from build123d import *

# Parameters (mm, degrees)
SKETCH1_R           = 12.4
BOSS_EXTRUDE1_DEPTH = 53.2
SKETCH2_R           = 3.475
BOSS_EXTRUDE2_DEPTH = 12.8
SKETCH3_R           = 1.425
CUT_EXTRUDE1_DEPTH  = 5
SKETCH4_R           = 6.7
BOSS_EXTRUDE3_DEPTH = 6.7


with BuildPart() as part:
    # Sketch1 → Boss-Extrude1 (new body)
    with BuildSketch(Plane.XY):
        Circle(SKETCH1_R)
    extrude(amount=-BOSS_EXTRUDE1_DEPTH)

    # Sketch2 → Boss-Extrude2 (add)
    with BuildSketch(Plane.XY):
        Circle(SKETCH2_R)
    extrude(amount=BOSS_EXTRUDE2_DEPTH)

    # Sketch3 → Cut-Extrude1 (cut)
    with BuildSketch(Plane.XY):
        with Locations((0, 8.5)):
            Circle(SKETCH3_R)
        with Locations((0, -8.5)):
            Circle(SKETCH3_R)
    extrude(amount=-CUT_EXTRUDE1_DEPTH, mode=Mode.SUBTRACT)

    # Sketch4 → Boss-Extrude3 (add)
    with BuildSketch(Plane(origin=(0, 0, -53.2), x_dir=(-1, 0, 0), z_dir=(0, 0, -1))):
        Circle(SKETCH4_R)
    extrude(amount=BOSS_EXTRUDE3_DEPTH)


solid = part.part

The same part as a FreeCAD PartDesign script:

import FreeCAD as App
import Part
import Sketcher
from FreeCAD import Vector

doc = App.newDocument("Part")
body = doc.addObject("PartDesign::Body", "Body")

# Sketch on XY plane
sketch1 = body.newObject("Sketcher::SketchObject", "Sketch")
sketch1.AttachmentSupport = (doc.getObject("XY_Plane"), [""])
sketch1.MapMode = "FlatFace"
sketch1.addGeometry(Part.Circle(Vector(0, 0, 0), Vector(0, 0, 1), 12), False)
sketch1.addConstraint([
    Sketcher.Constraint("Coincident", 0, 3, -1, 1),
    Sketcher.Constraint("Diameter", 0, 24.8),
])
pad1 = body.newObject("PartDesign::Pad", "Pad")
pad1.Profile = sketch1
pad1.Length = 53.2
pad1.Reversed = True

# Sketch on XY plane
sketch2 = body.newObject("Sketcher::SketchObject", "Sketch001")
sketch2.AttachmentSupport = (doc.getObject("XY_Plane"), [""])
sketch2.MapMode = "FlatFace"
sketch2.addGeometry(Part.Circle(Vector(0, 0, 0), Vector(0, 0, 1), 3.5), False)
sketch2.addConstraint([
    Sketcher.Constraint("Coincident", 0, 3, -1, 1),
    Sketcher.Constraint("Diameter", 0, 6.95),
])
pad2 = body.newObject("PartDesign::Pad", "Pad001")
pad2.Profile = sketch2
pad2.Length = 12.8

# Sketch on XY plane
sketch3 = body.newObject("Sketcher::SketchObject", "Sketch002")
sketch3.AttachmentSupport = (doc.getObject("XY_Plane"), [""])
sketch3.MapMode = "FlatFace"
sketch3.addGeometry([
    Part.Circle(Vector(0, 8.5, 0), Vector(0, 0, 1), 1.4),
    Part.Circle(Vector(0, -8.5, 0), Vector(0, 0, 1), 1.4),
], False)
sketch3.addConstraint([
    Sketcher.Constraint("Equal", 0, 1),
    Sketcher.Constraint("Symmetric", 0, 3, 1, 3, -1, 1),
    Sketcher.Constraint("PointOnObject", 0, 3, -2),
    Sketcher.Constraint("Diameter", 0, 2.85),
    Sketcher.Constraint("DistanceY", 1, 3, 0, 3, 17.0),
])
pocket1 = body.newObject("PartDesign::Pocket", "Pocket")
pocket1.Profile = sketch3
pocket1.Length = 5

# Sketch on XY plane
sketch4 = body.newObject("Sketcher::SketchObject", "Sketch003")
sketch4.AttachmentSupport = (doc.getObject("XY_Plane"), [""])
sketch4.MapMode = "FlatFace"
sketch4.AttachmentOffset = App.Placement(Vector(0, 0, -53.2), App.Rotation())
sketch4.addGeometry(Part.Circle(Vector(0, 0, 0), Vector(0, 0, 1), 7), False)
sketch4.addConstraint([
    Sketcher.Constraint("Coincident", 0, 3, -1, 1),
    Sketcher.Constraint("Diameter", 0, 13.4),
])
pad3 = body.newObject("PartDesign::Pad", "Pad002")
pad3.Profile = sketch4
pad3.Length = 6.7
pad3.Reversed = True

doc.recompute()
